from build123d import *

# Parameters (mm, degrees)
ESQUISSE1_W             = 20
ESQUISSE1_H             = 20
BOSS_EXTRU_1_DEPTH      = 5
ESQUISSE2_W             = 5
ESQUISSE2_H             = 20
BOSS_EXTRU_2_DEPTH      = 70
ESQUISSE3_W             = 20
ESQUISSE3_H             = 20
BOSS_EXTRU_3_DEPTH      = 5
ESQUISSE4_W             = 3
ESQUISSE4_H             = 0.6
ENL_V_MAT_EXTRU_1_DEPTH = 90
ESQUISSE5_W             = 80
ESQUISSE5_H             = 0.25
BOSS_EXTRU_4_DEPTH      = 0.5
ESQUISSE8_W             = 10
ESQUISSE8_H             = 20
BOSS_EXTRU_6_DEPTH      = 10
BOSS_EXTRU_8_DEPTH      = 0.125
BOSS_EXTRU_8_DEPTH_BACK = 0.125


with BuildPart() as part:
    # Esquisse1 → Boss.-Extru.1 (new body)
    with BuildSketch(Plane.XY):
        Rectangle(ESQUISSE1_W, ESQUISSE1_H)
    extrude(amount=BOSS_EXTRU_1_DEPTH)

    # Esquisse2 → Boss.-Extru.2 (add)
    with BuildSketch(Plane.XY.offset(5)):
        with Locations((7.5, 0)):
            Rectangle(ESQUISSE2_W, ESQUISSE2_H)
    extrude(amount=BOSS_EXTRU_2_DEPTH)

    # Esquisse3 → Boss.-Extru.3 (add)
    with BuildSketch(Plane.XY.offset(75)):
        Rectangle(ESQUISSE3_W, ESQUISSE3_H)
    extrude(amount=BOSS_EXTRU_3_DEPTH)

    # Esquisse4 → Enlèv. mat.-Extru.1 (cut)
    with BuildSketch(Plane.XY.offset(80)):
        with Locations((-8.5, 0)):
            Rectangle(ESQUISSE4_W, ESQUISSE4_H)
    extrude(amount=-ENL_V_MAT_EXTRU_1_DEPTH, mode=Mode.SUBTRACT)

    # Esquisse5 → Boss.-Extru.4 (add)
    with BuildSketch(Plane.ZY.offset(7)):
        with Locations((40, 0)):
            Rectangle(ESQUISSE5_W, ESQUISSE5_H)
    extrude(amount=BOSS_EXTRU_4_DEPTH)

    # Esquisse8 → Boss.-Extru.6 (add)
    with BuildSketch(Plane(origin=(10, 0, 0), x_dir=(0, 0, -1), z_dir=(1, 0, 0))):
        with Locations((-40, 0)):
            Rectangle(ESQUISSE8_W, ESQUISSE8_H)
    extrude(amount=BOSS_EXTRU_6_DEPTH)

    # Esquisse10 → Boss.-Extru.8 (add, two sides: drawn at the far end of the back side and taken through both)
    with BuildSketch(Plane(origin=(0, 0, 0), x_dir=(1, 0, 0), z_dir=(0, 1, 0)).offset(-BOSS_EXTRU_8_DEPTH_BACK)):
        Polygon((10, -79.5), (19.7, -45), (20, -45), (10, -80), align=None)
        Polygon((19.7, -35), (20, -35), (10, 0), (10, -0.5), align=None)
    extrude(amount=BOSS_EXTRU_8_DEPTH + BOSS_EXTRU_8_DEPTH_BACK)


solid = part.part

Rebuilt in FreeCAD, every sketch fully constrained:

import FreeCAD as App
import Part
import Sketcher

V = App.Vector
Q = App.Units.Quantity


def add_polygon(sketch, points):
    """Adds a closed chain of lines whose ends are joined by coincident constraints."""
    first, n = sketch.GeometryCount, len(points)
    for a, b in zip(points, points[1:] + points[:1]):
        sketch.addGeometry(Part.LineSegment(App.Vector(*a, 0), App.Vector(*b, 0)), False)
    for i in range(n):
        sketch.addConstraint(Sketcher.Constraint("Coincident", first + i, 2, first + (i + 1) % n, 1))

doc = App.newDocument("Part")
body = doc.addObject("PartDesign::Body", "Body")

# Sketch on XY plane
sketch1 = doc.addObject("Sketcher::SketchObject", "Sketch")
body.addObject(sketch1)
sketch1.AttachmentSupport = (doc.XY_Plane, [""])
sketch1.MapMode = "FlatFace"
add_polygon(sketch1, [(-10, 10), (-10, -10), (10, -10), (10, 10)])  # lines 0-3
sketch1.addConstraint(Sketcher.Constraint("Vertical", 0))
sketch1.addConstraint(Sketcher.Constraint("Horizontal", 1))
sketch1.addConstraint(Sketcher.Constraint("Vertical", 2))
sketch1.addConstraint(Sketcher.Constraint("Horizontal", 3))
sketch1.addConstraint(Sketcher.Constraint("Symmetric", 0, 2, 2, 2, -1, 1))
sketch1.addConstraint(Sketcher.Constraint("Equal", 3, 0))
sketch1.addConstraint(Sketcher.Constraint("DistanceX", 1, 1, 1, 2, Q("20 mm")))
pad1 = doc.addObject("PartDesign::Pad", "Pad")
body.addObject(pad1)
pad1.Profile = sketch1
pad1.Length = 5

# Sketch on XY plane
sketch2 = doc.addObject("Sketcher::SketchObject", "Sketch001")
body.addObject(sketch2)
sketch2.AttachmentSupport = (doc.XY_Plane, [""])
sketch2.MapMode = "FlatFace"
sketch2.AttachmentOffset = App.Placement(V(0, 0, 5), App.Rotation())
add_polygon(sketch2, [(5, 10), (5, -10), (10, -10), (10, 10)])  # lines 0-3
sketch2.addConstraint(Sketcher.Constraint("Vertical", 0))
sketch2.addConstraint(Sketcher.Constraint("Horizontal", 1))
sketch2.addConstraint(Sketcher.Constraint("Vertical", 2))
sketch2.addConstraint(Sketcher.Constraint("Horizontal", 3))
sketch2.addConstraint(Sketcher.Constraint("DistanceX", 1, 1, 1, 2, Q("5 mm")))
sketch2.addConstraint(Sketcher.Constraint("DistanceY", 0, 2, 0, 1, Q("20 mm")))
sketch2.addConstraint(Sketcher.Constraint("DistanceX", -1, 1, 0, 2, Q("5 mm")))
sketch2.addConstraint(Sketcher.Constraint("DistanceY", 0, 2, -1, 1, Q("10 mm")))
pad2 = doc.addObject("PartDesign::Pad", "Pad001")
body.addObject(pad2)
pad2.Profile = sketch2
pad2.Length = 70

# Sketch on XY plane
sketch3 = doc.addObject("Sketcher::SketchObject", "Sketch002")
body.addObject(sketch3)
sketch3.AttachmentSupport = (doc.XY_Plane, [""])
sketch3.MapMode = "FlatFace"
sketch3.AttachmentOffset = App.Placement(V(0, 0, 75), App.Rotation())
add_polygon(sketch3, [(-10, 10), (-10, -10), (10, -10), (10, 10)])  # lines 0-3
sketch3.addConstraint(Sketcher.Constraint("Vertical", 0))
sketch3.addConstraint(Sketcher.Constraint("Horizontal", 1))
sketch3.addConstraint(Sketcher.Constraint("Vertical", 2))
sketch3.addConstraint(Sketcher.Constraint("Horizontal", 3))
sketch3.addConstraint(Sketcher.Constraint("Symmetric", 0, 2, 2, 2, -1, 1))
sketch3.addConstraint(Sketcher.Constraint("Equal", 3, 0))
sketch3.addConstraint(Sketcher.Constraint("DistanceX", 1, 1, 1, 2, Q("20 mm")))
pad3 = doc.addObject("PartDesign::Pad", "Pad002")
body.addObject(pad3)
pad3.Profile = sketch3
pad3.Length = 5

# Sketch on XY plane
sketch4 = doc.addObject("Sketcher::SketchObject", "Sketch003")
body.addObject(sketch4)
sketch4.AttachmentSupport = (doc.XY_Plane, [""])
sketch4.MapMode = "FlatFace"
sketch4.AttachmentOffset = App.Placement(V(0, 0, 80), App.Rotation())
add_polygon(sketch4, [(-10, 0.3), (-10, -0.3), (-7, -0.3), (-7, 0.3)])  # lines 0-3
sketch4.addConstraint(Sketcher.Constraint("Vertical", 0))
sketch4.addConstraint(Sketcher.Constraint("Horizontal", 1))
sketch4.addConstraint(Sketcher.Constraint("Vertical", 2))
sketch4.addConstraint(Sketcher.Constraint("Horizontal", 3))
sketch4.addConstraint(Sketcher.Constraint("DistanceX", 1, 1, 1, 2, Q("3 mm")))
sketch4.addConstraint(Sketcher.Constraint("DistanceY", 0, 2, 0, 1, Q("0.6 mm")))
sketch4.addConstraint(Sketcher.Constraint("DistanceX", 0, 2, -1, 1, Q("10 mm")))
sketch4.addConstraint(Sketcher.Constraint("DistanceY", 0, 2, -1, 1, Q("0.3 mm")))
pocket1 = doc.addObject("PartDesign::Pocket", "Pocket")
body.addObject(pocket1)
pocket1.Profile = sketch4
pocket1.Length = 90

# Sketch on YZ plane
sketch5 = doc.addObject("Sketcher::SketchObject", "Sketch004")
body.addObject(sketch5)
sketch5.AttachmentSupport = (doc.YZ_Plane, [""])
sketch5.MapMode = "FlatFace"
sketch5.AttachmentOffset = App.Placement(V(0, 0, -7), App.Rotation())
add_polygon(sketch5, [(0.12, 0), (-0.12, 0), (-0.12, 80), (0.12, 80)])  # lines 0-3
sketch5.addConstraint(Sketcher.Constraint("Horizontal", 0))
sketch5.addConstraint(Sketcher.Constraint("Vertical", 1))
sketch5.addConstraint(Sketcher.Constraint("Horizontal", 2))
sketch5.addConstraint(Sketcher.Constraint("Vertical", 3))
sketch5.addConstraint(Sketcher.Constraint("Symmetric", 0, 2, 3, 2, -1, 1))
sketch5.addConstraint(Sketcher.Constraint("DistanceY", 1, 1, 1, 2, Q("80 mm")))
sketch5.addConstraint(Sketcher.Constraint("DistanceX", 0, 2, 0, 1, Q("0.25 mm")))
pad4 = doc.addObject("PartDesign::Pad", "Pad003")
body.addObject(pad4)
pad4.Profile = sketch5
pad4.Length = 0.5
pad4.Reversed = True

# Sketch on YZ plane
sketch6 = doc.addObject("Sketcher::SketchObject", "Sketch005")
body.addObject(sketch6)
sketch6.AttachmentSupport = (doc.YZ_Plane, [""])
sketch6.MapMode = "FlatFace"
sketch6.AttachmentOffset = App.Placement(V(0, 0, 10), App.Rotation())
add_polygon(sketch6, [(10, 45), (-10, 45), (-10, 35), (10, 35)])  # lines 0-3
sketch6.addConstraint(Sketcher.Constraint("Horizontal", 0))
sketch6.addConstraint(Sketcher.Constraint("Vertical", 1))
sketch6.addConstraint(Sketcher.Constraint("Horizontal", 2))
sketch6.addConstraint(Sketcher.Constraint("Vertical", 3))
sketch6.addConstraint(Sketcher.Constraint("DistanceX", 0, 2, 0, 1, Q("20 mm")))
sketch6.addConstraint(Sketcher.Constraint("DistanceY", 1, 2, 1, 1, Q("10 mm")))
sketch6.addConstraint(Sketcher.Constraint("DistanceX", 0, 2, -1, 1, Q("10 mm")))
sketch6.addConstraint(Sketcher.Constraint("DistanceY", -1, 1, 0, 2, Q("45 mm")))
pad5 = doc.addObject("PartDesign::Pad", "Pad004")
body.addObject(pad5)
pad5.Profile = sketch6
pad5.Length = 10

# Sketch on XZ plane
sketch7 = doc.addObject("Sketcher::SketchObject", "Sketch006")
body.addObject(sketch7)
sketch7.AttachmentSupport = (doc.XZ_Plane, [""])
sketch7.MapMode = "FlatFace"
add_polygon(sketch7, [(19.7, 45), (10, 79.5), (10, 80), (20, 45)])  # lines 0-3
add_polygon(sketch7, [(19.7, 35), (20, 35), (10, 0), (10, 0.5)])  # lines 4-7
sketch7.addConstraint(Sketcher.Constraint("Vertical", 1))
sketch7.addConstraint(Sketcher.Constraint("Horizontal", 3))
sketch7.addConstraint(Sketcher.Constraint("Horizontal", 4))
sketch7.addConstraint(Sketcher.Constraint("Vertical", 6))
sketch7.addConstraint(Sketcher.Constraint("PointOnObject", 5, 2, -1))
sketch7.addConstraint(Sketcher.Constraint("Vertical", 2, 2, 4, 2))
sketch7.addConstraint(Sketcher.Constraint("Vertical", 1, 2, 5, 2))
sketch7.addConstraint(Sketcher.Constraint("Vertical", 3, 2, 7, 2))
sketch7.addConstraint(Sketcher.Constraint("Equal", 1, 6))
sketch7.addConstraint(Sketcher.Constraint("Equal", 2, 5))
sketch7.addConstraint(Sketcher.Constraint("DistanceX", 3, 2, 3, 1, Q("0.3 mm")))
sketch7.addConstraint(Sketcher.Constraint("DistanceY", 1, 1, 1, 2, Q("0.5 mm")))
sketch7.addConstraint(Sketcher.Constraint("DistanceX", -1, 1, 0, 2, Q("10 mm")))
sketch7.addConstraint(Sketcher.Constraint("DistanceY", -1, 1, 1, 2, Q("80 mm")))
sketch7.addConstraint(Sketcher.Constraint("DistanceX", -1, 1, 2, 2, Q("20 mm")))
sketch7.addConstraint(Sketcher.Constraint("DistanceY", -1, 1, 2, 2, Q("45 mm")))
pad6 = doc.addObject("PartDesign::Pad", "Pad005")
body.addObject(pad6)
pad6.Profile = sketch7
pad6.Type = "TwoLengths"
pad6.Length = 0.125
pad6.Length2 = 0.125
pad6.Reversed = True

doc.recompute()
